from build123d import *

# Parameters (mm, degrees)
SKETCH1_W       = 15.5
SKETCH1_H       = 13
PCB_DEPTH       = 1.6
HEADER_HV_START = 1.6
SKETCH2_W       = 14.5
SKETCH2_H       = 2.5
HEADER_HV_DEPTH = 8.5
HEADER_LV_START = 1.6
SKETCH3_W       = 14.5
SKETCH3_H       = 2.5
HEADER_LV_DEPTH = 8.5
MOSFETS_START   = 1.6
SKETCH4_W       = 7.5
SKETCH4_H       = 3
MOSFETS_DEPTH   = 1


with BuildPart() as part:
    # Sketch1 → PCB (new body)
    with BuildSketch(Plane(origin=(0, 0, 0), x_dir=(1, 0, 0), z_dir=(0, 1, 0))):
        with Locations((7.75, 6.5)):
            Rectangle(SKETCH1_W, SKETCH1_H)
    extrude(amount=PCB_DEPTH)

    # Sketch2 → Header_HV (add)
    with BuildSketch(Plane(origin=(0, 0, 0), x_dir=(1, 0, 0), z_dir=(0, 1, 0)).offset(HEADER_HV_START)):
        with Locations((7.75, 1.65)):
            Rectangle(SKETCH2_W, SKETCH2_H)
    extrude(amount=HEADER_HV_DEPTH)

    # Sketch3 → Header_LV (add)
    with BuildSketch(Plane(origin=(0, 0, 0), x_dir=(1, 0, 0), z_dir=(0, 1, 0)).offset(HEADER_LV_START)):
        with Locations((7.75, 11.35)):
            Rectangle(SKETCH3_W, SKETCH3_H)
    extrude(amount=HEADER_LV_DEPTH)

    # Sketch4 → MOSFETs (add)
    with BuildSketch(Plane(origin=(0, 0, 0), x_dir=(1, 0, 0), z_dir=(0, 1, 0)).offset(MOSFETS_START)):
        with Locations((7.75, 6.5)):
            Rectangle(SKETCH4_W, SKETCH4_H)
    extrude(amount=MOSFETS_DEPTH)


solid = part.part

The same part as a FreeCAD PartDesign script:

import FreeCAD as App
import Part
import Sketcher

V = App.Vector


def add_polygon(sketch, points):
    """Adds a closed chain of lines whose ends are joined by coincident constraints."""
    first, n = sketch.GeometryCount, len(points)
    for a, b in zip(points, points[1:] + points[:1]):
        sketch.addGeometry(Part.LineSegment(App.Vector(*a, 0), App.Vector(*b, 0)), False)
    for i in range(n):
        sketch.addConstraint(Sketcher.Constraint("Coincident", first + i, 2, first + (i + 1) % n, 1))

doc = App.newDocument("Part")
body = doc.addObject("PartDesign::Body", "Body")

sketch1 = body.newObject("Sketcher::SketchObject", "Sketch")
sketch1.AttachmentSupport = (doc.getObject("XZ_Plane"), [""])
sketch1.MapMode = "FlatFace"
add_polygon(sketch1, [(0, -13), (0, 0), (16, 0), (16, -13)])
sketch1.addConstraint([
    Sketcher.Constraint("Vertical", 0),
    Sketcher.Constraint("Horizontal", 1),
    Sketcher.Constraint("Vertical", 2),
    Sketcher.Constraint("Horizontal", 3),
    Sketcher.Constraint("Coincident", 0, 2, -1, 1),
    Sketcher.Constraint("DistanceY", 0, 1, 0, 2, 13.0),
    Sketcher.Constraint("DistanceX", 1, 1, 1, 2, 15.5),
])
pad1 = body.newObject("PartDesign::Pad", "Pad")
pad1.Profile = sketch1
pad1.Length = 1.6
pad1.Reversed = True

sketch2 = body.newObject("Sketcher::SketchObject", "Sketch001")
sketch2.AttachmentSupport = (doc.getObject("XZ_Plane"), [""])
sketch2.MapMode = "FlatFace"
sketch2.AttachmentOffset = App.Placement(V(0, 0, -1.6), App.Rotation())
add_polygon(sketch2, [(0.5, -2.9), (0.5, -0.4), (15, -0.4), (15, -2.9)])
sketch2.addConstraint([
    Sketcher.Constraint("Vertical", 0),
    Sketcher.Constraint("Horizontal", 1),
    Sketcher.Constraint("Vertical", 2),
    Sketcher.Constraint("Horizontal", 3),
    Sketcher.Constraint("DistanceX", 1, 1, 1, 2, 14.5),
    Sketcher.Constraint("DistanceY", 0, 1, 0, 2, 2.5),
    Sketcher.Constraint("DistanceX", -1, 1, 1, 2, 15.0),
    Sketcher.Constraint("DistanceY", 0, 2, -1, 1, 0.4),
])
pad2 = body.newObject("PartDesign::Pad", "Pad001")
pad2.Profile = sketch2
pad2.Length = 8.5
pad2.Reversed = True

sketch3 = body.newObject("Sketcher::SketchObject", "Sketch002")
sketch3.AttachmentSupport = (doc.getObject("XZ_Plane"), [""])
sketch3.MapMode = "FlatFace"
sketch3.AttachmentOffset = App.Placement(V(0, 0, -1.6), App.Rotation())
add_polygon(sketch3, [(0.5, -12.6), (0.5, -10.1), (15, -10.1), (15, -12.6)])
sketch3.addConstraint([
    Sketcher.Constraint("Vertical", 0),
    Sketcher.Constraint("Horizontal", 1),
    Sketcher.Constraint("Vertical", 2),
    Sketcher.Constraint("Horizontal", 3),
    Sketcher.Constraint("DistanceX", 1, 1, 1, 2, 14.5),
    Sketcher.Constraint("DistanceY", 0, 1, 0, 2, 2.5),
    Sketcher.Constraint("DistanceX", -1, 1, 1, 2, 15.0),
    Sketcher.Constraint("DistanceY", 0, 2, -1, 1, 10.1),
])
pad3 = body.newObject("PartDesign::Pad", "Pad002")
pad3.Profile = sketch3
pad3.Length = 8.5
pad3.Reversed = True

sketch4 = body.newObject("Sketcher::SketchObject", "Sketch003")
sketch4.AttachmentSupport = (doc.getObject("XZ_Plane"), [""])
sketch4.MapMode = "FlatFace"
sketch4.AttachmentOffset = App.Placement(V(0, 0, -1.6), App.Rotation())
add_polygon(sketch4, [(4, -8), (4, -5), (11.5, -5), (11.5, -8)])
sketch4.addConstraint([
    Sketcher.Constraint("Vertical", 0),
    Sketcher.Constraint("Horizontal", 1),
    Sketcher.Constraint("Vertical", 2),
    Sketcher.Constraint("Horizontal", 3),
    Sketcher.Constraint("DistanceY", 0, 1, 0, 2, 3.0),
    Sketcher.Constraint("DistanceX", 1, 1, 1, 2, 7.5),
    Sketcher.Constraint("DistanceX", -1, 1, 0, 2, 4.0),
    Sketcher.Constraint("DistanceY", 0, 2, -1, 1, 5.0),
])
pad4 = body.newObject("PartDesign::Pad", "Pad003")
pad4.Profile = sketch4
pad4.Length = 1
pad4.Reversed = True

doc.recompute()
